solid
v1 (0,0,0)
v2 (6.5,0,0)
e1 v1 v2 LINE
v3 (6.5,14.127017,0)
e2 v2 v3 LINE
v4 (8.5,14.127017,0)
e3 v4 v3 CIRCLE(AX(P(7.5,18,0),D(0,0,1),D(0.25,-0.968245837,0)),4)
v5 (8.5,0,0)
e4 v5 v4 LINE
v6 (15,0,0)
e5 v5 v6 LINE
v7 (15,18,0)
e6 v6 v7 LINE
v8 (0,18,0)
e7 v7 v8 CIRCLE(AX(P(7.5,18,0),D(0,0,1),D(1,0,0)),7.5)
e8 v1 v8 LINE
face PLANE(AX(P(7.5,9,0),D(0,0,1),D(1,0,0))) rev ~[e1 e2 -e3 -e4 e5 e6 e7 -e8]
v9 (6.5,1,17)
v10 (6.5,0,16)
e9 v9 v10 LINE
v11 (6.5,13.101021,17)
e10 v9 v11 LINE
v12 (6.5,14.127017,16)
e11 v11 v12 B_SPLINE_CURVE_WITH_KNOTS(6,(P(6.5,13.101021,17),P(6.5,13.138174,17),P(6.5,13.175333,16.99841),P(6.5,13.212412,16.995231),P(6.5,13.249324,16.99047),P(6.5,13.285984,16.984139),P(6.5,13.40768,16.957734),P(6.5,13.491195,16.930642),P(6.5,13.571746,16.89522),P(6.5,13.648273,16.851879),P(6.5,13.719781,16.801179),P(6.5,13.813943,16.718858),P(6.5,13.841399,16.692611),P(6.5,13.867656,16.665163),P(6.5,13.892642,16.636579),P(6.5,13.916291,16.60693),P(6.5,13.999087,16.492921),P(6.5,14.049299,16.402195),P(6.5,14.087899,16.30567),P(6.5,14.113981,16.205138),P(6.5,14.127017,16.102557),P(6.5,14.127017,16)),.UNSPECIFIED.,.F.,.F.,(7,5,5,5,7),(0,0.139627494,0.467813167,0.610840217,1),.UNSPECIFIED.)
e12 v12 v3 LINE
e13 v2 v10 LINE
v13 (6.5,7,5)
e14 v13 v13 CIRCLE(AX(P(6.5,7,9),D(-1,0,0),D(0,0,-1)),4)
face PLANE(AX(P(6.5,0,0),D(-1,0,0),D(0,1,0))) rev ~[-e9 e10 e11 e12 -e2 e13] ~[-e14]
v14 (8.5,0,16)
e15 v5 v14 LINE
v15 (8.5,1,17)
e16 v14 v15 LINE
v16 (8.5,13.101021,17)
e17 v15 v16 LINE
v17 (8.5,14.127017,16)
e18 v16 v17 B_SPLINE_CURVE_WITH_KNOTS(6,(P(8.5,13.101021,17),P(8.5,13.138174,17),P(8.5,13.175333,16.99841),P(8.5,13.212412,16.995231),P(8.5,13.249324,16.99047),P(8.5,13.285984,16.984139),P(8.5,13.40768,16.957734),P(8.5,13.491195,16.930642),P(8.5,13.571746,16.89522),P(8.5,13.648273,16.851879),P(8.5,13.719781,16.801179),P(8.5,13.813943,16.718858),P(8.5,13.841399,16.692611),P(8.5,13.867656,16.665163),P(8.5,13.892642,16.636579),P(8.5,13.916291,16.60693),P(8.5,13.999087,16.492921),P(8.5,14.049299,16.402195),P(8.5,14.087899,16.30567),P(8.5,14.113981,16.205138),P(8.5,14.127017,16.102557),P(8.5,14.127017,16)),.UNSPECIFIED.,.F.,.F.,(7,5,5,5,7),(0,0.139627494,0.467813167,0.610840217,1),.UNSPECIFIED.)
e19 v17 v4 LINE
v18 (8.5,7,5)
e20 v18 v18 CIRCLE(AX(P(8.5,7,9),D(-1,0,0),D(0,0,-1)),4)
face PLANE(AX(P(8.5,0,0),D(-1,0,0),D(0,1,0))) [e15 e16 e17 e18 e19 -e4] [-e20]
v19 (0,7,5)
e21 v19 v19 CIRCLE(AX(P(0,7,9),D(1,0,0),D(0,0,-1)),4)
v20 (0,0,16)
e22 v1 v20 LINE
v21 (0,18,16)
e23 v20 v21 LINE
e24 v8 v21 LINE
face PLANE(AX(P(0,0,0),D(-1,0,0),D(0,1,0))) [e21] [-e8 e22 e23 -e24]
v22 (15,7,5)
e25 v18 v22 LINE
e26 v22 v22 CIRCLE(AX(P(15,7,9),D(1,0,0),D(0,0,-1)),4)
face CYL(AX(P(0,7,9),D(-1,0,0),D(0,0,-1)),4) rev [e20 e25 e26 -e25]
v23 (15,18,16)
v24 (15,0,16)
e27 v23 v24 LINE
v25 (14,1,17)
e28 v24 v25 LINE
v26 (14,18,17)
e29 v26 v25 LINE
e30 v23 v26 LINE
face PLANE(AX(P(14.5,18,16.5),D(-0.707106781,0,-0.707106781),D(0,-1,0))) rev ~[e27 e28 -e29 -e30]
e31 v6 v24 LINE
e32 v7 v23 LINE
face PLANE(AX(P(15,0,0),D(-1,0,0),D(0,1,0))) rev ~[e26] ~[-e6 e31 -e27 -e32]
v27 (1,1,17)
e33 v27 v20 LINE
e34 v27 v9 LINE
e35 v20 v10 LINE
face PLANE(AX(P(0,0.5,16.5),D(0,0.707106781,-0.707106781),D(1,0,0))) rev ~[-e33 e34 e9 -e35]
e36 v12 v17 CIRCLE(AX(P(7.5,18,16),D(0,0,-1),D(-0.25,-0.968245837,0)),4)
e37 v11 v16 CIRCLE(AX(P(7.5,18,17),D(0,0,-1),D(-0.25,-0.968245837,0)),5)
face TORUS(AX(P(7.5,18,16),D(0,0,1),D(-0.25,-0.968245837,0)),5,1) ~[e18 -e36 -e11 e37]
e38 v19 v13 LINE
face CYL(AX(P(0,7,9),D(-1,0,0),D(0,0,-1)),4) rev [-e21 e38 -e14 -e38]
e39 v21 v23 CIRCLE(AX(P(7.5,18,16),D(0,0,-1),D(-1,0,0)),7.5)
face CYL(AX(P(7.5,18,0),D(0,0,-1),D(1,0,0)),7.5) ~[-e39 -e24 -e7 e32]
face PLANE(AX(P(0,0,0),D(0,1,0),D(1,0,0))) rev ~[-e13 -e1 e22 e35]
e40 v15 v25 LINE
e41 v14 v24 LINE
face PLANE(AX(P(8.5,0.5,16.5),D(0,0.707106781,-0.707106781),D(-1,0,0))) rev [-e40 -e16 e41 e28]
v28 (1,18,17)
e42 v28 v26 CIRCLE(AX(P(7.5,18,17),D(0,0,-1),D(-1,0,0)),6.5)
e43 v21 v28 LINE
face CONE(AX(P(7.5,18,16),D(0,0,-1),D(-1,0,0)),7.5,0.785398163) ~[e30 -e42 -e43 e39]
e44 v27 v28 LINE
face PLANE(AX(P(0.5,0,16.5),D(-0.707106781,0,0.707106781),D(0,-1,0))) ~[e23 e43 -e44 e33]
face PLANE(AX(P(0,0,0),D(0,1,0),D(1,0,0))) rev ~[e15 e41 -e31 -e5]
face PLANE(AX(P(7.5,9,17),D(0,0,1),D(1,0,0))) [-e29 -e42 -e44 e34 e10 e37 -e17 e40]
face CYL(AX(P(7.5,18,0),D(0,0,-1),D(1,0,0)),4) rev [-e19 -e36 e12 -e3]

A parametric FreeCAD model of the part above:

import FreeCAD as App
import Part
import Sketcher

V = App.Vector
Q = App.Units.Quantity


def edges_at(feature, points):
    """Names of the edges that pass closest to the given points."""
    edges = feature.Shape.Edges
    near = lambda p: min(range(len(edges)), key=lambda i: edges[i].distToShape(Part.Vertex(*p))[0])
    return sorted({f"Edge{near(p) + 1}" for p in points})


def add_polygon(sketch, points):
    """Adds a closed chain of lines whose ends are joined by coincident constraints."""
    first, n = sketch.GeometryCount, len(points)
    for a, b in zip(points, points[1:] + points[:1]):
        sketch.addGeometry(Part.LineSegment(App.Vector(*a, 0), App.Vector(*b, 0)), False)
    for i in range(n):
        sketch.addConstraint(Sketcher.Constraint("Coincident", first + i, 2, first + (i + 1) % n, 1))

doc = App.newDocument("Part")
params = doc.addObject("Spreadsheet::Sheet", "Params")
for row, (alias, value) in enumerate([
    ("sketch1_width", "2 mm"),
    ("sketch1_height", "17 mm"),
    ("pad1_length", "17 mm"),
    ("sketch2_diameter", "8 mm"),
    ("pad2_length", "15 mm"),
    ("sketch3_diameter", "8 mm"),
    ("pad3_length", "17 mm"),
    ("sketch4_width", "15 mm"),
    ("sketch4_height", "18 mm"),
    ("pad4_length", "17 mm"),
    ("sketch5_diameter", "15 mm"),
    ("pad5_length", "17 mm"),
    ("chamfer_size", "1 mm"),
    ("fillet_radius", "1 mm"),
], start=1):
    params.set(f"A{row}", alias)
    params.set(f"B{row}", "=" + value)
    params.setAlias(f"B{row}", alias)

body = doc.addObject("PartDesign::Body", "Body")

sketch1 = body.newObject("Sketcher::SketchObject", "Sketch")
sketch1.AttachmentSupport = (doc.getObject("XY_Plane"), [""])
sketch1.MapMode = "FlatFace"
add_polygon(sketch1, [(6.5, 17), (6.5, 0), (8.5, 0), (8.5, 17)])
sketch1.addConstraint([
    Sketcher.Constraint("Vertical", 0),
    Sketcher.Constraint("Horizontal", 1),
    Sketcher.Constraint("Vertical", 2),
    Sketcher.Constraint("Horizontal", 3),
    Sketcher.Constraint("PointOnObject", 0, 2, -1),
    Sketcher.Constraint("DistanceX", 1, 1, 1, 2, Q("2 mm")),
    Sketcher.Constraint("DistanceY", 0, 2, 0, 1, Q("17 mm")),
    Sketcher.Constraint("DistanceX", -1, 1, 0, 2, Q("6.5 mm")),
])
sketch1.setExpression("Constraints[9]", "Params.sketch1_width")
sketch1.setExpression("Constraints[10]", "Params.sketch1_height")
pad1 = body.newObject("PartDesign::Pad", "Pad")
pad1.Profile = sketch1
pad1.setExpression("Length", "Params.pad1_length")
body2 = doc.addObject("PartDesign::Body", "Body001")

sketch2 = body2.newObject("Sketcher::SketchObject", "Sketch001")
sketch2.AttachmentSupport = (doc.getObject("XY_Plane001"), [""])
sketch2.MapMode = "FlatFace"
sketch2.addGeometry(Part.Circle(V(0, 0, 0), V(0, 0, 1), 4), False)
sketch2.addConstraint([
    Sketcher.Constraint("Coincident", 0, 3, -1, 1),
    Sketcher.Constraint("Diameter", 0, Q("8 mm")),
])
sketch2.setExpression("Constraints[1]", "Params.sketch2_diameter")
pad2 = body2.newObject("PartDesign::Pad", "Pad001")
pad2.Profile = sketch2
pad2.setExpression("Length", "Params.pad2_length")
body3 = doc.addObject("PartDesign::Body", "Body002")
doc.recompute()

body2.Placement = App.Placement(V(0, 0, 0), App.Rotation(V(0, 1, 0), 90))
boolean = body3.newObject("PartDesign::Boolean", "Boolean")
boolean.Type = "Fuse"
boolean.addObjects([body2])
body4 = doc.addObject("PartDesign::Body", "Body003")
doc.recompute()

body3.Placement = App.Placement(V(0, 7, 9), App.Rotation(V(0, 0, 1), 0))
boolean2 = body4.newObject("PartDesign::Boolean", "Boolean001")
boolean2.Type = "Fuse"
boolean2.addObjects([body3])
body5 = doc.addObject("PartDesign::Body", "Body004")

sketch3 = body5.newObject("Sketcher::SketchObject", "Sketch002")
sketch3.AttachmentSupport = (doc.getObject("XY_Plane004"), [""])
sketch3.MapMode = "FlatFace"
sketch3.addGeometry(Part.Circle(V(7.5, 18, 0), V(0, 0, 1), 4), False)
sketch3.addConstraint([
    Sketcher.Constraint("Diameter", 0, Q("8 mm")),
    Sketcher.Constraint("DistanceY", -1, 1, 0, 3, Q("18 mm")),
    Sketcher.Constraint("DistanceX", -1, 1, 0, 3, Q("7.5 mm")),
])
sketch3.setExpression("Constraints[0]", "Params.sketch3_diameter")
pad3 = body5.newObject("PartDesign::Pad", "Pad002")
pad3.Profile = sketch3
pad3.setExpression("Length", "Params.pad3_length")
body6 = doc.addObject("PartDesign::Body", "Body005")

sketch4 = body6.newObject("Sketcher::SketchObject", "Sketch003")
sketch4.AttachmentSupport = (doc.getObject("XY_Plane005"), [""])
sketch4.MapMode = "FlatFace"
add_polygon(sketch4, [(0, 18), (0, 0), (15, 0), (15, 18)])
sketch4.addConstraint([
    Sketcher.Constraint("Vertical", 0),
    Sketcher.Constraint("Horizontal", 1),
    Sketcher.Constraint("Vertical", 2),
    Sketcher.Constraint("Horizontal", 3),
    Sketcher.Constraint("Coincident", 0, 2, -1, 1),
    Sketcher.Constraint("DistanceX", 1, 1, 1, 2, Q("15 mm")),
    Sketcher.Constraint("DistanceY", 0, 2, 0, 1, Q("18 mm")),
])
sketch4.setExpression("Constraints[9]", "Params.sketch4_width")
sketch4.setExpression("Constraints[10]", "Params.sketch4_height")
pad4 = body6.newObject("PartDesign::Pad", "Pad003")
pad4.Profile = sketch4
pad4.setExpression("Length", "Params.pad4_length")
body7 = doc.addObject("PartDesign::Body", "Body006")

sketch5 = body7.newObject("Sketcher::SketchObject", "Sketch004")
sketch5.AttachmentSupport = (doc.getObject("XY_Plane006"), [""])
sketch5.MapMode = "FlatFace"
sketch5.addGeometry(Part.Circle(V(7.5, 18, 0), V(0, 0, 1), 7.5), False)
sketch5.addConstraint([
    Sketcher.Constraint("Diameter", 0, Q("15 mm")),
    Sketcher.Constraint("DistanceY", -1, 1, 0, 3, Q("18 mm")),
    Sketcher.Constraint("DistanceX", -1, 1, 0, 3, Q("7.5 mm")),
])
sketch5.setExpression("Constraints[0]", "Params.sketch5_diameter")
pad5 = body7.newObject("PartDesign::Pad", "Pad004")
pad5.Profile = sketch5
pad5.setExpression("Length", "Params.pad5_length")
doc.recompute()

boolean3 = body7.newObject("PartDesign::Boolean", "Boolean002")
boolean3.Type = "Fuse"
boolean3.addObjects([body6])
doc.recompute()

boolean4 = body7.newObject("PartDesign::Boolean", "Boolean003")
boolean4.Type = "Cut"
boolean4.addObjects([body5])
doc.recompute()

boolean5 = body7.newObject("PartDesign::Boolean", "Boolean004")
boolean5.Type = "Cut"
boolean5.addObjects([body4])
doc.recompute()

boolean6 = body7.newObject("PartDesign::Boolean", "Boolean005")
boolean6.Type = "Cut"
boolean6.addObjects([body])
doc.recompute()

chamfer = body7.newObject("PartDesign::Chamfer", "Chamfer")
chamfer.Base = (boolean6, edges_at(boolean6, [
    (3.25, 0, 17),
    (0, 9, 17),
    (7.5, 25.5, 17),
    (15, 9, 17),
    (11.75, 0, 17),
]))
chamfer.setExpression("Size", "Params.chamfer_size")
doc.recompute()

fillet = body7.newObject("PartDesign::Fillet", "Fillet")
fillet.Base = (chamfer, edges_at(chamfer, [(7.5, 22, 17), (7.5, 22, 17), (7.5, 22, 17)]))
fillet.setExpression("Radius", "Params.fillet_radius")

doc.recompute()
